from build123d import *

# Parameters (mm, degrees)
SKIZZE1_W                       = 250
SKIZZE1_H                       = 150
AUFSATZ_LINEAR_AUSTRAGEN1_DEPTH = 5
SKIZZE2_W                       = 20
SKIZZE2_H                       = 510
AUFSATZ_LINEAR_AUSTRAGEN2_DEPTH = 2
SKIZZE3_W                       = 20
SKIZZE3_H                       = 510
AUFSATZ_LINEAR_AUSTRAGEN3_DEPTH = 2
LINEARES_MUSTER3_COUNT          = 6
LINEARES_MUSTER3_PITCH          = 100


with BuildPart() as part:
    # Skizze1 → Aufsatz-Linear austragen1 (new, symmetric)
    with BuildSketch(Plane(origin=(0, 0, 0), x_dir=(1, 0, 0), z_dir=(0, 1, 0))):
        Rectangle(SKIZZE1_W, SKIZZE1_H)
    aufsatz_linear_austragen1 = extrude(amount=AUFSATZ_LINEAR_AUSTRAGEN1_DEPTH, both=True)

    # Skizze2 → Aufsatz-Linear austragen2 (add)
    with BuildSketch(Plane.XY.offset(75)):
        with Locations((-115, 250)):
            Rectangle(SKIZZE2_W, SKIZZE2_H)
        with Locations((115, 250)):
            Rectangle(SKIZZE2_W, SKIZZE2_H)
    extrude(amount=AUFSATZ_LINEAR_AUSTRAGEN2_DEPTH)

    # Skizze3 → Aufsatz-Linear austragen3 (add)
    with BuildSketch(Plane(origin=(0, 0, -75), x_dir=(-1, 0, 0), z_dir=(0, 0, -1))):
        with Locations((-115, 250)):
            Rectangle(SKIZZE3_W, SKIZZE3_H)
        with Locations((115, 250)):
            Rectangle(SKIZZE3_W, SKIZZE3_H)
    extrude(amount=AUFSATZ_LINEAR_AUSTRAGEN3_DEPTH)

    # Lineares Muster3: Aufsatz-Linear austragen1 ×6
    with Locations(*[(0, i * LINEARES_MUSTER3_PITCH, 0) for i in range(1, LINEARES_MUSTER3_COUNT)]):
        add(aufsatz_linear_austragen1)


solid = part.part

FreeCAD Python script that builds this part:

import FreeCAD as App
import Part
import Sketcher
Q = App.Units.Quantity

doc = App.newDocument("Part")
body = doc.addObject("PartDesign::Body", "Body")

# Sketch on XZ plane
sketch1 = doc.addObject("Sketcher::SketchObject", "Sketch")
body.addObject(sketch1)
sketch1.AttachmentSupport = (doc.XZ_Plane, [""])
sketch1.MapMode = "FlatFace"
sketch1.addGeometry([
    Part.LineSegment(App.Vector(-125, -75, 0), App.Vector(-125, 75, 0)),
    Part.LineSegment(App.Vector(-125, 75, 0), App.Vector(125, 75, 0)),
    Part.LineSegment(App.Vector(125, 75, 0), App.Vector(125, -75, 0)),
    Part.LineSegment(App.Vector(125, -75, 0), App.Vector(-125, -75, 0)),
], False)
sketch1.addConstraint([
    Sketcher.Constraint("Coincident", 0, 2, 1, 1),
    Sketcher.Constraint("Coincident", 1, 2, 2, 1),
    Sketcher.Constraint("Coincident", 2, 2, 3, 1),
    Sketcher.Constraint("Coincident", 3, 2, 0, 1),
    Sketcher.Constraint("Vertical", 0),
    Sketcher.Constraint("Horizontal", 1),
    Sketcher.Constraint("Vertical", 2),
    Sketcher.Constraint("Horizontal", 3),
    Sketcher.Constraint("Symmetric", 0, 2, 2, 2, -1, 1),
    Sketcher.Constraint("DistanceX", 1, 1, 1, 2, Q("250 mm")),
    Sketcher.Constraint("DistanceY", 0, 1, 0, 2, Q("150 mm")),
])
pad1 = doc.addObject("PartDesign::Pad", "Pad")
body.addObject(pad1)
pad1.Profile = sketch1
pad1.Length = 10
pad1.Midplane = True

# Sketch on XY plane
sketch2 = doc.addObject("Sketcher::SketchObject", "Sketch001")
body.addObject(sketch2)
sketch2.AttachmentSupport = (doc.XY_Plane, [""])
sketch2.MapMode = "FlatFace"
sketch2.AttachmentOffset = App.Placement(App.Vector(0, 0, 75), App.Rotation())
sketch2.addGeometry([
    Part.LineSegment(App.Vector(-125, 505, 0), App.Vector(-125, -5, 0)),  # 0
    Part.LineSegment(App.Vector(-125, -5, 0), App.Vector(-105, -5, 0)),  # 1
    Part.LineSegment(App.Vector(-105, -5, 0), App.Vector(-105, 505, 0)),  # 2
    Part.LineSegment(App.Vector(-105, 505, 0), App.Vector(-125, 505, 0)),  # 3
    Part.LineSegment(App.Vector(105, 505, 0), App.Vector(105, -5, 0)),  # 4
    Part.LineSegment(App.Vector(105, -5, 0), App.Vector(125, -5, 0)),  # 5
    Part.LineSegment(App.Vector(125, -5, 0), App.Vector(125, 505, 0)),  # 6
    Part.LineSegment(App.Vector(125, 505, 0), App.Vector(105, 505, 0)),  # 7
], False)
sketch2.addConstraint([
    Sketcher.Constraint("Coincident", 0, 2, 1, 1),
    Sketcher.Constraint("Coincident", 1, 2, 2, 1),
    Sketcher.Constraint("Coincident", 2, 2, 3, 1),
    Sketcher.Constraint("Coincident", 3, 2, 0, 1),
    Sketcher.Constraint("Coincident", 4, 2, 5, 1),
    Sketcher.Constraint("Coincident", 5, 2, 6, 1),
    Sketcher.Constraint("Coincident", 6, 2, 7, 1),
    Sketcher.Constraint("Coincident", 7, 2, 4, 1),
    Sketcher.Constraint("Vertical", 0),
    Sketcher.Constraint("Horizontal", 1),
    Sketcher.Constraint("Vertical", 2),
    Sketcher.Constraint("Horizontal", 3),
    Sketcher.Constraint("Vertical", 4),
    Sketcher.Constraint("Horizontal", 5),
    Sketcher.Constraint("Vertical", 6),
    Sketcher.Constraint("Horizontal", 7),
    Sketcher.Constraint("Symmetric", 1, 2, 4, 2, -2),
    Sketcher.Constraint("Symmetric", 3, 2, 6, 2, -2),
    Sketcher.Constraint("DistanceX", 1, 1, 1, 2, Q("20 mm")),
    Sketcher.Constraint("DistanceY", 0, 2, 0, 1, Q("510 mm")),
    Sketcher.Constraint("DistanceX", 0, 2, -1, 1, Q("125 mm")),
    Sketcher.Constraint("DistanceY", 0, 2, -1, 1, Q("5 mm")),
])
pad2 = doc.addObject("PartDesign::Pad", "Pad001")
body.addObject(pad2)
pad2.Profile = sketch2
pad2.Length = 2

# Sketch on XY plane
sketch3 = doc.addObject("Sketcher::SketchObject", "Sketch002")
body.addObject(sketch3)
sketch3.AttachmentSupport = (doc.XY_Plane, [""])
sketch3.MapMode = "FlatFace"
sketch3.AttachmentOffset = App.Placement(App.Vector(0, 0, -75), App.Rotation())
sketch3.addGeometry([
    Part.LineSegment(App.Vector(125, 505, 0), App.Vector(125, -5, 0)),  # 0
    Part.LineSegment(App.Vector(125, -5, 0), App.Vector(105, -5, 0)),  # 1
    Part.LineSegment(App.Vector(105, -5, 0), App.Vector(105, 505, 0)),  # 2
    Part.LineSegment(App.Vector(105, 505, 0), App.Vector(125, 505, 0)),  # 3
    Part.LineSegment(App.Vector(-105, 505, 0), App.Vector(-105, -5, 0)),  # 4
    Part.LineSegment(App.Vector(-105, -5, 0), App.Vector(-125, -5, 0)),  # 5
    Part.LineSegment(App.Vector(-125, -5, 0), App.Vector(-125, 505, 0)),  # 6
    Part.LineSegment(App.Vector(-125, 505, 0), App.Vector(-105, 505, 0)),  # 7
], False)
sketch3.addConstraint([
    Sketcher.Constraint("Coincident", 0, 2, 1, 1),
    Sketcher.Constraint("Coincident", 1, 2, 2, 1),
    Sketcher.Constraint("Coincident", 2, 2, 3, 1),
    Sketcher.Constraint("Coincident", 3, 2, 0, 1),
    Sketcher.Constraint("Coincident", 4, 2, 5, 1),
    Sketcher.Constraint("Coincident", 5, 2, 6, 1),
    Sketcher.Constraint("Coincident", 6, 2, 7, 1),
    Sketcher.Constraint("Coincident", 7, 2, 4, 1),
    Sketcher.Constraint("Vertical", 0),
    Sketcher.Constraint("Horizontal", 1),
    Sketcher.Constraint("Vertical", 2),
    Sketcher.Constraint("Horizontal", 3),
    Sketcher.Constraint("Vertical", 4),
    Sketcher.Constraint("Horizontal", 5),
    Sketcher.Constraint("Vertical", 6),
    Sketcher.Constraint("Horizontal", 7),
    Sketcher.Constraint("Symmetric", 1, 2, 4, 2, -2),
    Sketcher.Constraint("Symmetric", 3, 2, 6, 2, -2),
    Sketcher.Constraint("DistanceX", 1, 2, 1, 1, Q("20 mm")),
    Sketcher.Constraint("DistanceY", 0, 2, 0, 1, Q("510 mm")),
    Sketcher.Constraint("DistanceX", -1, 1, 0, 2, Q("125 mm")),
    Sketcher.Constraint("DistanceY", 0, 2, -1, 1, Q("5 mm")),
])
pad3 = doc.addObject("PartDesign::Pad", "Pad002")
body.addObject(pad3)
pad3.Profile = sketch3
pad3.Length = 2
pad3.Reversed = True
doc.recompute()

linearpattern = doc.addObject("PartDesign::LinearPattern", "LinearPattern")
body.addObject(linearpattern)
linearpattern.Originals = [pad1]
linearpattern.Direction = (doc.Y_Axis, [""])
linearpattern.Mode = "offset"
linearpattern.Offset = 100
linearpattern.Occurrences = 6
body.Tip = linearpattern

doc.recompute()
